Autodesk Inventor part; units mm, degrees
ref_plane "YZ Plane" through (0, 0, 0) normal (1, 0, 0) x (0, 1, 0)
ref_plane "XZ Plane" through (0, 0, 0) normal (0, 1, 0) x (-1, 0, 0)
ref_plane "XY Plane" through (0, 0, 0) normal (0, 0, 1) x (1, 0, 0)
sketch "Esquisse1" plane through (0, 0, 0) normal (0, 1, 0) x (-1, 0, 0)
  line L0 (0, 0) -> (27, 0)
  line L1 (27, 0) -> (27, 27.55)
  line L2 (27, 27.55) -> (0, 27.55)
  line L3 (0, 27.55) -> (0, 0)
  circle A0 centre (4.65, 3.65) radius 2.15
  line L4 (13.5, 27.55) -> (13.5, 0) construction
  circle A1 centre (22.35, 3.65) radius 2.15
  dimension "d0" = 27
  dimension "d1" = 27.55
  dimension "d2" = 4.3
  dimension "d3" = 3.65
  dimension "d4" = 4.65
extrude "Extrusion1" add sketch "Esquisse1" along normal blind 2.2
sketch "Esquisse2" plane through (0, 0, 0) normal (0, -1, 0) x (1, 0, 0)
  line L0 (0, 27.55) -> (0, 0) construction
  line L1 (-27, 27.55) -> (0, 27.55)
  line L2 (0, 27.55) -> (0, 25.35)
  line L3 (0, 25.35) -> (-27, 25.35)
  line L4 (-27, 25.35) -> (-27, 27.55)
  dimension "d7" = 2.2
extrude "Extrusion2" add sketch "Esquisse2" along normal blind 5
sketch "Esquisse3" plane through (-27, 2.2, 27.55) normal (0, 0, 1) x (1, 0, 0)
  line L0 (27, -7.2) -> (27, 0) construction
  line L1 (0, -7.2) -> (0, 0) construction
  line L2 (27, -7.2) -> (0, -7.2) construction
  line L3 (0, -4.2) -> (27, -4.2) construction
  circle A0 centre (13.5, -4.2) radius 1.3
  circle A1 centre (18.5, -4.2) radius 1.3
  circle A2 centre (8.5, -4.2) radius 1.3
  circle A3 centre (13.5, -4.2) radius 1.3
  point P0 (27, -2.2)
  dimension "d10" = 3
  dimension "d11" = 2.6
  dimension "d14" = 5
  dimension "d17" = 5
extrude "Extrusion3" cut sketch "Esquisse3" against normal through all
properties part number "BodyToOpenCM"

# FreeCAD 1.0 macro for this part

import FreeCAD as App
import Part
import Sketcher
from FreeCAD import Vector
Q = App.Units.Quantity

doc = App.newDocument("Part")
body = doc.addObject("PartDesign::Body", "Body")

# Sketch on XZ plane
sketch1 = doc.addObject("Sketcher::SketchObject", "Sketch")
body.addObject(sketch1)
sketch1.AttachmentSupport = (doc.XZ_Plane, [""])
sketch1.MapMode = "FlatFace"
sketch1.addGeometry([
    Part.LineSegment(Vector(0, 27.6, 0), Vector(0, 0, 0)),  # 0
    Part.LineSegment(Vector(0, 0, 0), Vector(-27, 0, 0)),  # 1
    Part.LineSegment(Vector(-27, 0, 0), Vector(-27, 27.6, 0)),  # 2
    Part.LineSegment(Vector(-27, 27.6, 0), Vector(0, 27.6, 0)),  # 3
    Part.Circle(Vector(-4.7, 3.6, 0), Vector(0, 0, 1), 2.1),  # 4
    Part.Circle(Vector(-22.4, 3.6, 0), Vector(0, 0, 1), 2.1),  # 5
], False)
sketch1.addConstraint([
    Sketcher.Constraint("Coincident", 0, 2, 1, 1),
    Sketcher.Constraint("Coincident", 1, 2, 2, 1),
    Sketcher.Constraint("Coincident", 2, 2, 3, 1),
    Sketcher.Constraint("Coincident", 3, 2, 0, 1),
    Sketcher.Constraint("Vertical", 0),
    Sketcher.Constraint("Horizontal", 1),
    Sketcher.Constraint("Vertical", 2),
    Sketcher.Constraint("Horizontal", 3),
    Sketcher.Constraint("Coincident", 0, 2, -1, 1),
    Sketcher.Constraint("Equal", 4, 5),
    Sketcher.Constraint("Horizontal", 4, 3, 5, 3),
    Sketcher.Constraint("Diameter", 4, Q("4.3 mm")),
    Sketcher.Constraint("DistanceX", 1, 2, 1, 1, Q("27 mm")),
    Sketcher.Constraint("DistanceY", 0, 2, 0, 1, Q("27.55 mm")),
    Sketcher.Constraint("DistanceX", 4, 3, -1, 1, Q("4.65 mm")),
    Sketcher.Constraint("DistanceY", -1, 1, 4, 3, Q("3.65 mm")),
    Sketcher.Constraint("DistanceX", 1, 2, 5, 3, Q("4.65 mm")),
])
pad1 = doc.addObject("PartDesign::Pad", "Pad")
body.addObject(pad1)
pad1.Profile = sketch1
pad1.Length = 2.2
pad1.Reversed = True

# Sketch on XZ plane
sketch2 = doc.addObject("Sketcher::SketchObject", "Sketch001")
body.addObject(sketch2)
sketch2.AttachmentSupport = (doc.XZ_Plane, [""])
sketch2.MapMode = "FlatFace"
sketch2.addGeometry([
    Part.LineSegment(Vector(0, 27.6, 0), Vector(-27, 27.6, 0)),
    Part.LineSegment(Vector(-27, 27.6, 0), Vector(-27, 25.4, 0)),
    Part.LineSegment(Vector(-27, 25.4, 0), Vector(0, 25.4, 0)),
    Part.LineSegment(Vector(0, 25.4, 0), Vector(0, 27.6, 0)),
], False)
sketch2.addConstraint([
    Sketcher.Constraint("Coincident", 0, 2, 1, 1),
    Sketcher.Constraint("Coincident", 1, 2, 2, 1),
    Sketcher.Constraint("Coincident", 2, 2, 3, 1),
    Sketcher.Constraint("Coincident", 3, 2, 0, 1),
    Sketcher.Constraint("Horizontal", 0),
    Sketcher.Constraint("Vertical", 1),
    Sketcher.Constraint("Horizontal", 2),
    Sketcher.Constraint("Vertical", 3),
    Sketcher.Constraint("PointOnObject", 2, 2, -2),
    Sketcher.Constraint("DistanceY", 1, 2, 1, 1, Q("2.2 mm")),
    Sketcher.Constraint("DistanceX", 0, 2, 0, 1, Q("27 mm")),
    Sketcher.Constraint("DistanceY", -1, 1, 0, 2, Q("27.55 mm")),
])
pad2 = doc.addObject("PartDesign::Pad", "Pad001")
body.addObject(pad2)
pad2.Profile = sketch2
pad2.Length = 5

# Sketch on XY plane
sketch3 = doc.addObject("Sketcher::SketchObject", "Sketch002")
body.addObject(sketch3)
sketch3.AttachmentSupport = (doc.XY_Plane, [""])
sketch3.MapMode = "FlatFace"
sketch3.AttachmentOffset = App.Placement(Vector(0, 0, 27.55), App.Rotation())
sketch3.addGeometry([
    Part.Circle(Vector(-13.5, -2, 0), Vector(0, 0, 1), 1.3),
    Part.Circle(Vector(-8.5, -2, 0), Vector(0, 0, 1), 1.3),
    Part.Circle(Vector(-18.5, -2, 0), Vector(0, 0, 1), 1.3),
], False)
sketch3.addConstraint([
    Sketcher.Constraint("Equal", 0, 1),
    Sketcher.Constraint("Equal", 1, 2),
    Sketcher.Constraint("Horizontal", 0, 3, 1, 3),
    Sketcher.Constraint("Horizontal", 1, 3, 2, 3),
    Sketcher.Constraint("Diameter", 0, Q("2.6 mm")),
    Sketcher.Constraint("DistanceX", 0, 3, 1, 3, Q("5 mm")),
    Sketcher.Constraint("DistanceX", 2, 3, 0, 3, Q("5 mm")),
    Sketcher.Constraint("DistanceY", 0, 3, -1, 1, Q("2 mm")),
    Sketcher.Constraint("DistanceX", 0, 3, -1, 1, Q("13.5 mm")),
])
pocket1 = doc.addObject("PartDesign::Pocket", "Pocket")
body.addObject(pocket1)
pocket1.Profile = sketch3
pocket1.Type = "ThroughAll"

doc.recompute()
